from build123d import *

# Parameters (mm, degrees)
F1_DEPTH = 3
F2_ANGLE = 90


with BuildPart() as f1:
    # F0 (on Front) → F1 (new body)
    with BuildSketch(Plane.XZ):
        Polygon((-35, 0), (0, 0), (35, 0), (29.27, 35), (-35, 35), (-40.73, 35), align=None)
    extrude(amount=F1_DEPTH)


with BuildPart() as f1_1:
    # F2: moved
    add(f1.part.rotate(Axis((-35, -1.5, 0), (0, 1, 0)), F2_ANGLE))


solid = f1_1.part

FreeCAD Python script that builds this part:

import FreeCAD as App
import Part
import Sketcher
from FreeCAD import Vector
Q = App.Units.Quantity


def add_polygon(sketch, points):
    """Adds a closed chain of lines whose ends are joined by coincident constraints."""
    first, n = sketch.GeometryCount, len(points)
    for a, b in zip(points, points[1:] + points[:1]):
        sketch.addGeometry(Part.LineSegment(App.Vector(*a, 0), App.Vector(*b, 0)), False)
    for i in range(n):
        sketch.addConstraint(Sketcher.Constraint("Coincident", first + i, 2, first + (i + 1) % n, 1))

doc = App.newDocument("Part")
body = doc.addObject("PartDesign::Body", "Body")

# Sketch on XZ plane
sketch1 = doc.addObject("Sketcher::SketchObject", "Sketch")
body.addObject(sketch1)
sketch1.AttachmentSupport = (doc.XZ_Plane, [""])
sketch1.MapMode = "FlatFace"
add_polygon(sketch1, [(-35, 0), (35, 0), (29.27, 35), (-40.73, 35)])  # lines 0-3
sketch1.addConstraint(Sketcher.Constraint("Horizontal", 0))
sketch1.addConstraint(Sketcher.Constraint("Horizontal", 2))
sketch1.addConstraint(Sketcher.Constraint("Symmetric", 0, 2, 3, 2, -1, 1))
sketch1.addConstraint(Sketcher.Constraint("Parallel", 1, 3))
sketch1.addConstraint(Sketcher.Constraint("DistanceX", 0, 1, 0, 2, Q("70 mm")))
sketch1.addConstraint(Sketcher.Constraint("DistanceY", -1, 1, 1, 2, Q("35 mm")))
sketch1.addConstraint(Sketcher.Constraint("DistanceX", -1, 1, 1, 2, Q("29.27 mm")))
pad1 = doc.addObject("PartDesign::Pad", "Pad")
body.addObject(pad1)
pad1.Profile = sketch1
pad1.Length = 3
body2 = doc.addObject("PartDesign::Body", "Body001")
doc.recompute()

body.Placement = App.Placement(Vector(-35, 0, -35), App.Rotation(Vector(0, 1, 0), 90))
boolean = doc.addObject("PartDesign::Boolean", "Boolean")
body2.addObject(boolean)
boolean.Type = "Fuse"
boolean.addObjects([body])

doc.recompute()
